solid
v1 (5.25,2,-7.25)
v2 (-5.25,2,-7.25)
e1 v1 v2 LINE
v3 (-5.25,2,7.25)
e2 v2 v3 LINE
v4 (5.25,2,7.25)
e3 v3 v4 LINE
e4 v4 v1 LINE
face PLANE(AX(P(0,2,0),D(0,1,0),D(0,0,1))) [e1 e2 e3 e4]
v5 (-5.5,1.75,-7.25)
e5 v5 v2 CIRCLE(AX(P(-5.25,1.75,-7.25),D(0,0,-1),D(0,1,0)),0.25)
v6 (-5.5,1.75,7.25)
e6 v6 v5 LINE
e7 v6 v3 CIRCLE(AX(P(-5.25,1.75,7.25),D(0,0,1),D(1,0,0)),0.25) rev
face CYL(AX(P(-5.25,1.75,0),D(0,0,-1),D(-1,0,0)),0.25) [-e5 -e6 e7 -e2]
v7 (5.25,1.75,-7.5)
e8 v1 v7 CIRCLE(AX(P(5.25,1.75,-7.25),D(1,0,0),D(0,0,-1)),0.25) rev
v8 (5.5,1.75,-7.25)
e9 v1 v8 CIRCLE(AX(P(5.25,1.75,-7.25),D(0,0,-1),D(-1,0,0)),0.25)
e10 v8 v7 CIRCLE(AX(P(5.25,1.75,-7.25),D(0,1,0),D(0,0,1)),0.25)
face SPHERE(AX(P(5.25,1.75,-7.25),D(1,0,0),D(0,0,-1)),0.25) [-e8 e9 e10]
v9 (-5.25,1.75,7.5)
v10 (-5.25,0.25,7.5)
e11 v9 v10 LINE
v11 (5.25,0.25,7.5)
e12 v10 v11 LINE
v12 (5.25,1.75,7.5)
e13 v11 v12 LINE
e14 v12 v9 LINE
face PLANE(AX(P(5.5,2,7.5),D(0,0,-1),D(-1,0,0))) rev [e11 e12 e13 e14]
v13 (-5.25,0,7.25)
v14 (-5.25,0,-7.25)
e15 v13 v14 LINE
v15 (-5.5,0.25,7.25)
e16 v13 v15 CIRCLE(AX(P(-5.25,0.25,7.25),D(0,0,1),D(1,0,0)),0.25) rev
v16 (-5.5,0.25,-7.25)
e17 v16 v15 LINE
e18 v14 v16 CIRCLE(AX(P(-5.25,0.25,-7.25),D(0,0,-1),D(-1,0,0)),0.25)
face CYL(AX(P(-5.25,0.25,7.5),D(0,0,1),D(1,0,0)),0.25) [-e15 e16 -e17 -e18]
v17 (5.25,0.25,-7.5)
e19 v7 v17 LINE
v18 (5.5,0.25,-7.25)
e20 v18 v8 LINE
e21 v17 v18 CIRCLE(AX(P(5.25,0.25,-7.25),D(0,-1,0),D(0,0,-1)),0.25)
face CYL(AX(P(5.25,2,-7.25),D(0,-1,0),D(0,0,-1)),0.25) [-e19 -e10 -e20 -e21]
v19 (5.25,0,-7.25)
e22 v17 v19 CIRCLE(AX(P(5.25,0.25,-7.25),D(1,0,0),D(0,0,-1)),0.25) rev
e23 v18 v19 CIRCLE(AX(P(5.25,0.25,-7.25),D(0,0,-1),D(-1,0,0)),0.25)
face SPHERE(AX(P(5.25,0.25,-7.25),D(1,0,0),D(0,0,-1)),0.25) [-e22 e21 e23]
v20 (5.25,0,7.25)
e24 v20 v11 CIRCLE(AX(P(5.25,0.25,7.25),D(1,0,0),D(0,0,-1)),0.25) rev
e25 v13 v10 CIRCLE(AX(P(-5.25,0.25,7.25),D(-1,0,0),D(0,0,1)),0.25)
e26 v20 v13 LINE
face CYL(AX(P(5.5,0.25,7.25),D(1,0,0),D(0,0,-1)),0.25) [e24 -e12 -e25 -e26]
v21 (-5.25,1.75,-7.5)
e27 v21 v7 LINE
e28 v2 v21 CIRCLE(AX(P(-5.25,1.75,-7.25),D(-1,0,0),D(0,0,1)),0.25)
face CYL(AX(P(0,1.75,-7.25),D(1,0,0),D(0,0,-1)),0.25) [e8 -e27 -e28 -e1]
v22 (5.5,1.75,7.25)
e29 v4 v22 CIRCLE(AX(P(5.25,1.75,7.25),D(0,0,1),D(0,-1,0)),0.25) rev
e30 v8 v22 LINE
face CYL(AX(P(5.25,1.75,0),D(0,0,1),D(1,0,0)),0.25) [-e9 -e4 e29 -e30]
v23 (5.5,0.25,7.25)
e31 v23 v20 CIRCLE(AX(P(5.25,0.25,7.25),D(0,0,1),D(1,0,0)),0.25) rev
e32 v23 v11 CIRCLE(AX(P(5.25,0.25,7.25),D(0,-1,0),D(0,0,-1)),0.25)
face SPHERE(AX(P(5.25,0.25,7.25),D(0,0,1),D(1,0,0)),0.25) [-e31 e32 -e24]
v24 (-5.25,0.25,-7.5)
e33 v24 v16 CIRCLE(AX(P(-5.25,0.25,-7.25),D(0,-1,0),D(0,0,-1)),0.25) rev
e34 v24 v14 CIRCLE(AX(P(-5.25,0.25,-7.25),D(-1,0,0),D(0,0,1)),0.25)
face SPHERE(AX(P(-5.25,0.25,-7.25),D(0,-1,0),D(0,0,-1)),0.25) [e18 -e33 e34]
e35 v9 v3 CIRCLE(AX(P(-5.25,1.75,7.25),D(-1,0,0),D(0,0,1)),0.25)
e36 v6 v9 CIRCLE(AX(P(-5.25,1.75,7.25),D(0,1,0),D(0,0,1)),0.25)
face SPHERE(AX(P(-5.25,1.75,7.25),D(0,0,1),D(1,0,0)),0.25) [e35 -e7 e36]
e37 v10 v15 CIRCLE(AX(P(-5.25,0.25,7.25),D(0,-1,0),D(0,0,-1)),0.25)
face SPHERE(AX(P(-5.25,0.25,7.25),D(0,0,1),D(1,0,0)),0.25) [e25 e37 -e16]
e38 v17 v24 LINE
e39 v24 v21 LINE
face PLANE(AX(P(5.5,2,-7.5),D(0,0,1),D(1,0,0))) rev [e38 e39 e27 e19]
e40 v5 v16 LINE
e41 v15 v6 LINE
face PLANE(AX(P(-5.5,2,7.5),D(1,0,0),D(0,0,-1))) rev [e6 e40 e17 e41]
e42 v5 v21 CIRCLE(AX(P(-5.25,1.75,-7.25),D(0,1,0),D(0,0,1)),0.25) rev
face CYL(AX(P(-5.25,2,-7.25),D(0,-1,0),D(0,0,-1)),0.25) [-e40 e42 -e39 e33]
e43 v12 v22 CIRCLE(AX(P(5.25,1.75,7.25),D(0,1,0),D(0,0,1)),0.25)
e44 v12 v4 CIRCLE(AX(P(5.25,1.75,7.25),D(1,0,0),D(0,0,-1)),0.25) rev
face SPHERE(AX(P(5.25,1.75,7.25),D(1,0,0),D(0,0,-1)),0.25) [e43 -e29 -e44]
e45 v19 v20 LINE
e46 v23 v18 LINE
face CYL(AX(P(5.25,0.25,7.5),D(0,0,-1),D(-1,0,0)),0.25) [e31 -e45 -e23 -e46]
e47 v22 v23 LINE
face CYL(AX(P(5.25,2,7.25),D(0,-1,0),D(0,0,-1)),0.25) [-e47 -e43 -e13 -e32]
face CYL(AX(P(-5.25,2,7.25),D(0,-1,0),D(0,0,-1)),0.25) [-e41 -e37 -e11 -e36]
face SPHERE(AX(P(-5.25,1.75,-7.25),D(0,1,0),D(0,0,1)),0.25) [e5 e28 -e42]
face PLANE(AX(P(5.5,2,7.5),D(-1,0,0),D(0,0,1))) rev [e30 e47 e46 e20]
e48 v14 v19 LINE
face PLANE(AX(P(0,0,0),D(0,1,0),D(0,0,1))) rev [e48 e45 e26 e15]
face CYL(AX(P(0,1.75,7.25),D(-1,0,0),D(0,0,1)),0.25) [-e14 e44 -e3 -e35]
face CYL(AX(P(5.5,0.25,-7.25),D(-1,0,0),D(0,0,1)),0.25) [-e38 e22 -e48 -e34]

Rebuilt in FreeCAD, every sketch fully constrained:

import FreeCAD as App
import Part
import Sketcher
from FreeCAD import Vector
Q = App.Units.Quantity


def add_polygon(sketch, points):
    """Adds a closed chain of lines whose ends are joined by coincident constraints."""
    first, n = sketch.GeometryCount, len(points)
    for a, b in zip(points, points[1:] + points[:1]):
        sketch.addGeometry(Part.LineSegment(App.Vector(*a, 0), App.Vector(*b, 0)), False)
    for i in range(n):
        sketch.addConstraint(Sketcher.Constraint("Coincident", first + i, 2, first + (i + 1) % n, 1))

doc = App.newDocument("Part")
params = doc.addObject("Spreadsheet::Sheet", "Params")
for row, (alias, value) in enumerate([
    ("sketch1_width", "11 mm"),
    ("sketch1_height", "15 mm"),
    ("pad1_length", "2 mm"),
    ("fillet_radius", "0.25 mm"),
], start=1):
    params.set(f"A{row}", alias)
    params.set(f"B{row}", "=" + value)
    params.setAlias(f"B{row}", alias)

body = doc.addObject("PartDesign::Body", "Body")

# Sketch on XZ plane
sketch1 = body.newObject("Sketcher::SketchObject", "Sketch")
sketch1.AttachmentSupport = (doc.getObject("XZ_Plane"), [""])
sketch1.MapMode = "FlatFace"
add_polygon(sketch1, [(-6, -8), (-6, 8), (6, 8), (6, -8)])  # lines 0-3
sketch1.addConstraint(Sketcher.Constraint("Vertical", 0))
sketch1.addConstraint(Sketcher.Constraint("Horizontal", 1))
sketch1.addConstraint(Sketcher.Constraint("Vertical", 2))
sketch1.addConstraint(Sketcher.Constraint("Horizontal", 3))
sketch1.addConstraint(Sketcher.Constraint("Symmetric", 0, 2, 2, 2, -1, 1))
sketch1.addConstraint(Sketcher.Constraint("DistanceX", 1, 1, 1, 2, Q("11 mm")))
sketch1.addConstraint(Sketcher.Constraint("DistanceY", 0, 1, 0, 2, Q("15 mm")))
sketch1.setExpression("Constraints[9]", "Params.sketch1_width")
sketch1.setExpression("Constraints[10]", "Params.sketch1_height")
pad1 = body.newObject("PartDesign::Pad", "Pad")
pad1.Profile = sketch1
pad1.setExpression("Length", "Params.pad1_length")
pad1.Reversed = True
doc.recompute()

fillet = body.newObject("PartDesign::Fillet", "Fillet")
fillet.Base = (pad1, ["Edge1"])
fillet.UseAllEdges = True
fillet.setExpression("Radius", "Params.fillet_radius")

doc.recompute()
